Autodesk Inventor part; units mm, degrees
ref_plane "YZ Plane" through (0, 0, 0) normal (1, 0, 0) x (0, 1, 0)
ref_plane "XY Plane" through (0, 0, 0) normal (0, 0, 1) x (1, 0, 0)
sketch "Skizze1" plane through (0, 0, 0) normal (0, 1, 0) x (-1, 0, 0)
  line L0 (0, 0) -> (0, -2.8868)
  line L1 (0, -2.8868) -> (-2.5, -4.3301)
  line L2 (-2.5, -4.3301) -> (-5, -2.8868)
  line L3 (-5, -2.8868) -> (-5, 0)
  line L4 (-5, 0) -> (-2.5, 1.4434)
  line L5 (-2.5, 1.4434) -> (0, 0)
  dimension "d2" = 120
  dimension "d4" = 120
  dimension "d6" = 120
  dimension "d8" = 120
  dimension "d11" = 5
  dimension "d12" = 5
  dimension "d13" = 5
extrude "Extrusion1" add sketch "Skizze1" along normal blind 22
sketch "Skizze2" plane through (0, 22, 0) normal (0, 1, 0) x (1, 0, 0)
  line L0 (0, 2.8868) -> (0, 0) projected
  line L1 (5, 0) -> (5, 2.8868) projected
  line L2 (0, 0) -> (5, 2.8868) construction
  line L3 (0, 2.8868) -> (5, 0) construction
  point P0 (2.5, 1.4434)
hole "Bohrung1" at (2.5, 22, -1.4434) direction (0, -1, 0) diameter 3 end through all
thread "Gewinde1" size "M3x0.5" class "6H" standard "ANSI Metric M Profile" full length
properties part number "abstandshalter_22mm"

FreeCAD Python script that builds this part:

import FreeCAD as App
import Part
import Sketcher

V = App.Vector
Q = App.Units.Quantity

doc = App.newDocument("Part")
body = doc.addObject("PartDesign::Body", "Body")

# Sketch on XZ plane
sketch1 = body.newObject("Sketcher::SketchObject", "Sketch")
sketch1.AttachmentSupport = (doc.getObject("XZ_Plane"), [""])
sketch1.MapMode = "FlatFace"
sketch1.addGeometry([
    Part.LineSegment(V(0, -2.9, 0), V(0, 0, 0)),  # 0
    Part.LineSegment(V(0, 0, 0), V(2.5, 1.4, 0)),  # 1
    Part.LineSegment(V(2.5, 1.4, 0), V(5, 0, 0)),  # 2
    Part.LineSegment(V(5, 0, 0), V(5, -2.9, 0)),  # 3
    Part.LineSegment(V(5, -2.9, 0), V(2.5, -4.3, 0)),  # 4
    Part.LineSegment(V(2.5, -4.3, 0), V(0, -2.9, 0)),  # 5
], False)
sketch1.addConstraint([
    Sketcher.Constraint("Coincident", 0, 2, 1, 1),
    Sketcher.Constraint("Coincident", 1, 2, 2, 1),
    Sketcher.Constraint("Coincident", 2, 2, 3, 1),
    Sketcher.Constraint("Coincident", 3, 2, 4, 1),
    Sketcher.Constraint("Coincident", 4, 2, 5, 1),
    Sketcher.Constraint("Coincident", 5, 2, 0, 1),
    Sketcher.Constraint("Vertical", 0),
    Sketcher.Constraint("Vertical", 3),
    Sketcher.Constraint("Coincident", 0, 2, -1, 1),
    Sketcher.Constraint("PointOnObject", 2, 2, -1),
    Sketcher.Constraint("Parallel", 1, 4),
    Sketcher.Constraint("Parallel", 2, 5),
    Sketcher.Constraint("Horizontal", 3, 2, 5, 2),
    Sketcher.Constraint("Vertical", 1, 2, 4, 2),
    Sketcher.Constraint("DistanceX", -1, 1, 2, 2, Q("5 mm")),
    Sketcher.Constraint("Angle", 1, Q("30.0004 deg")),
    Sketcher.Constraint("DistanceY", 4, 2, -1, 1, Q("4.33 mm")),
])
pad1 = body.newObject("PartDesign::Pad", "Pad")
pad1.Profile = sketch1
pad1.Length = 22
pad1.Reversed = True

# Sketch on XZ plane
sketch2 = body.newObject("Sketcher::SketchObject", "Sketch001")
sketch2.AttachmentSupport = (doc.getObject("XZ_Plane"), [""])
sketch2.MapMode = "FlatFace"
sketch2.AttachmentOffset = App.Placement(V(0, 0, -22), App.Rotation())
sketch2.addGeometry(Part.Circle(V(2.5, -1.4, 0), V(0, 0, 1), 1.5), False)
sketch2.addConstraint([
    Sketcher.Constraint("Diameter", 0, Q("3 mm")),
    Sketcher.Constraint("DistanceX", -1, 1, 0, 3, Q("2.5 mm")),
    Sketcher.Constraint("DistanceY", 0, 3, -1, 1, Q("1.4434 mm")),
])
doc.recompute()
hole = body.newObject("PartDesign::Hole", "Hole")
hole.Profile = sketch2
hole.ThreadType = "None"
hole.Diameter = 3
hole.DepthType = "ThroughAll"
hole.Reversed = True

doc.recompute()
